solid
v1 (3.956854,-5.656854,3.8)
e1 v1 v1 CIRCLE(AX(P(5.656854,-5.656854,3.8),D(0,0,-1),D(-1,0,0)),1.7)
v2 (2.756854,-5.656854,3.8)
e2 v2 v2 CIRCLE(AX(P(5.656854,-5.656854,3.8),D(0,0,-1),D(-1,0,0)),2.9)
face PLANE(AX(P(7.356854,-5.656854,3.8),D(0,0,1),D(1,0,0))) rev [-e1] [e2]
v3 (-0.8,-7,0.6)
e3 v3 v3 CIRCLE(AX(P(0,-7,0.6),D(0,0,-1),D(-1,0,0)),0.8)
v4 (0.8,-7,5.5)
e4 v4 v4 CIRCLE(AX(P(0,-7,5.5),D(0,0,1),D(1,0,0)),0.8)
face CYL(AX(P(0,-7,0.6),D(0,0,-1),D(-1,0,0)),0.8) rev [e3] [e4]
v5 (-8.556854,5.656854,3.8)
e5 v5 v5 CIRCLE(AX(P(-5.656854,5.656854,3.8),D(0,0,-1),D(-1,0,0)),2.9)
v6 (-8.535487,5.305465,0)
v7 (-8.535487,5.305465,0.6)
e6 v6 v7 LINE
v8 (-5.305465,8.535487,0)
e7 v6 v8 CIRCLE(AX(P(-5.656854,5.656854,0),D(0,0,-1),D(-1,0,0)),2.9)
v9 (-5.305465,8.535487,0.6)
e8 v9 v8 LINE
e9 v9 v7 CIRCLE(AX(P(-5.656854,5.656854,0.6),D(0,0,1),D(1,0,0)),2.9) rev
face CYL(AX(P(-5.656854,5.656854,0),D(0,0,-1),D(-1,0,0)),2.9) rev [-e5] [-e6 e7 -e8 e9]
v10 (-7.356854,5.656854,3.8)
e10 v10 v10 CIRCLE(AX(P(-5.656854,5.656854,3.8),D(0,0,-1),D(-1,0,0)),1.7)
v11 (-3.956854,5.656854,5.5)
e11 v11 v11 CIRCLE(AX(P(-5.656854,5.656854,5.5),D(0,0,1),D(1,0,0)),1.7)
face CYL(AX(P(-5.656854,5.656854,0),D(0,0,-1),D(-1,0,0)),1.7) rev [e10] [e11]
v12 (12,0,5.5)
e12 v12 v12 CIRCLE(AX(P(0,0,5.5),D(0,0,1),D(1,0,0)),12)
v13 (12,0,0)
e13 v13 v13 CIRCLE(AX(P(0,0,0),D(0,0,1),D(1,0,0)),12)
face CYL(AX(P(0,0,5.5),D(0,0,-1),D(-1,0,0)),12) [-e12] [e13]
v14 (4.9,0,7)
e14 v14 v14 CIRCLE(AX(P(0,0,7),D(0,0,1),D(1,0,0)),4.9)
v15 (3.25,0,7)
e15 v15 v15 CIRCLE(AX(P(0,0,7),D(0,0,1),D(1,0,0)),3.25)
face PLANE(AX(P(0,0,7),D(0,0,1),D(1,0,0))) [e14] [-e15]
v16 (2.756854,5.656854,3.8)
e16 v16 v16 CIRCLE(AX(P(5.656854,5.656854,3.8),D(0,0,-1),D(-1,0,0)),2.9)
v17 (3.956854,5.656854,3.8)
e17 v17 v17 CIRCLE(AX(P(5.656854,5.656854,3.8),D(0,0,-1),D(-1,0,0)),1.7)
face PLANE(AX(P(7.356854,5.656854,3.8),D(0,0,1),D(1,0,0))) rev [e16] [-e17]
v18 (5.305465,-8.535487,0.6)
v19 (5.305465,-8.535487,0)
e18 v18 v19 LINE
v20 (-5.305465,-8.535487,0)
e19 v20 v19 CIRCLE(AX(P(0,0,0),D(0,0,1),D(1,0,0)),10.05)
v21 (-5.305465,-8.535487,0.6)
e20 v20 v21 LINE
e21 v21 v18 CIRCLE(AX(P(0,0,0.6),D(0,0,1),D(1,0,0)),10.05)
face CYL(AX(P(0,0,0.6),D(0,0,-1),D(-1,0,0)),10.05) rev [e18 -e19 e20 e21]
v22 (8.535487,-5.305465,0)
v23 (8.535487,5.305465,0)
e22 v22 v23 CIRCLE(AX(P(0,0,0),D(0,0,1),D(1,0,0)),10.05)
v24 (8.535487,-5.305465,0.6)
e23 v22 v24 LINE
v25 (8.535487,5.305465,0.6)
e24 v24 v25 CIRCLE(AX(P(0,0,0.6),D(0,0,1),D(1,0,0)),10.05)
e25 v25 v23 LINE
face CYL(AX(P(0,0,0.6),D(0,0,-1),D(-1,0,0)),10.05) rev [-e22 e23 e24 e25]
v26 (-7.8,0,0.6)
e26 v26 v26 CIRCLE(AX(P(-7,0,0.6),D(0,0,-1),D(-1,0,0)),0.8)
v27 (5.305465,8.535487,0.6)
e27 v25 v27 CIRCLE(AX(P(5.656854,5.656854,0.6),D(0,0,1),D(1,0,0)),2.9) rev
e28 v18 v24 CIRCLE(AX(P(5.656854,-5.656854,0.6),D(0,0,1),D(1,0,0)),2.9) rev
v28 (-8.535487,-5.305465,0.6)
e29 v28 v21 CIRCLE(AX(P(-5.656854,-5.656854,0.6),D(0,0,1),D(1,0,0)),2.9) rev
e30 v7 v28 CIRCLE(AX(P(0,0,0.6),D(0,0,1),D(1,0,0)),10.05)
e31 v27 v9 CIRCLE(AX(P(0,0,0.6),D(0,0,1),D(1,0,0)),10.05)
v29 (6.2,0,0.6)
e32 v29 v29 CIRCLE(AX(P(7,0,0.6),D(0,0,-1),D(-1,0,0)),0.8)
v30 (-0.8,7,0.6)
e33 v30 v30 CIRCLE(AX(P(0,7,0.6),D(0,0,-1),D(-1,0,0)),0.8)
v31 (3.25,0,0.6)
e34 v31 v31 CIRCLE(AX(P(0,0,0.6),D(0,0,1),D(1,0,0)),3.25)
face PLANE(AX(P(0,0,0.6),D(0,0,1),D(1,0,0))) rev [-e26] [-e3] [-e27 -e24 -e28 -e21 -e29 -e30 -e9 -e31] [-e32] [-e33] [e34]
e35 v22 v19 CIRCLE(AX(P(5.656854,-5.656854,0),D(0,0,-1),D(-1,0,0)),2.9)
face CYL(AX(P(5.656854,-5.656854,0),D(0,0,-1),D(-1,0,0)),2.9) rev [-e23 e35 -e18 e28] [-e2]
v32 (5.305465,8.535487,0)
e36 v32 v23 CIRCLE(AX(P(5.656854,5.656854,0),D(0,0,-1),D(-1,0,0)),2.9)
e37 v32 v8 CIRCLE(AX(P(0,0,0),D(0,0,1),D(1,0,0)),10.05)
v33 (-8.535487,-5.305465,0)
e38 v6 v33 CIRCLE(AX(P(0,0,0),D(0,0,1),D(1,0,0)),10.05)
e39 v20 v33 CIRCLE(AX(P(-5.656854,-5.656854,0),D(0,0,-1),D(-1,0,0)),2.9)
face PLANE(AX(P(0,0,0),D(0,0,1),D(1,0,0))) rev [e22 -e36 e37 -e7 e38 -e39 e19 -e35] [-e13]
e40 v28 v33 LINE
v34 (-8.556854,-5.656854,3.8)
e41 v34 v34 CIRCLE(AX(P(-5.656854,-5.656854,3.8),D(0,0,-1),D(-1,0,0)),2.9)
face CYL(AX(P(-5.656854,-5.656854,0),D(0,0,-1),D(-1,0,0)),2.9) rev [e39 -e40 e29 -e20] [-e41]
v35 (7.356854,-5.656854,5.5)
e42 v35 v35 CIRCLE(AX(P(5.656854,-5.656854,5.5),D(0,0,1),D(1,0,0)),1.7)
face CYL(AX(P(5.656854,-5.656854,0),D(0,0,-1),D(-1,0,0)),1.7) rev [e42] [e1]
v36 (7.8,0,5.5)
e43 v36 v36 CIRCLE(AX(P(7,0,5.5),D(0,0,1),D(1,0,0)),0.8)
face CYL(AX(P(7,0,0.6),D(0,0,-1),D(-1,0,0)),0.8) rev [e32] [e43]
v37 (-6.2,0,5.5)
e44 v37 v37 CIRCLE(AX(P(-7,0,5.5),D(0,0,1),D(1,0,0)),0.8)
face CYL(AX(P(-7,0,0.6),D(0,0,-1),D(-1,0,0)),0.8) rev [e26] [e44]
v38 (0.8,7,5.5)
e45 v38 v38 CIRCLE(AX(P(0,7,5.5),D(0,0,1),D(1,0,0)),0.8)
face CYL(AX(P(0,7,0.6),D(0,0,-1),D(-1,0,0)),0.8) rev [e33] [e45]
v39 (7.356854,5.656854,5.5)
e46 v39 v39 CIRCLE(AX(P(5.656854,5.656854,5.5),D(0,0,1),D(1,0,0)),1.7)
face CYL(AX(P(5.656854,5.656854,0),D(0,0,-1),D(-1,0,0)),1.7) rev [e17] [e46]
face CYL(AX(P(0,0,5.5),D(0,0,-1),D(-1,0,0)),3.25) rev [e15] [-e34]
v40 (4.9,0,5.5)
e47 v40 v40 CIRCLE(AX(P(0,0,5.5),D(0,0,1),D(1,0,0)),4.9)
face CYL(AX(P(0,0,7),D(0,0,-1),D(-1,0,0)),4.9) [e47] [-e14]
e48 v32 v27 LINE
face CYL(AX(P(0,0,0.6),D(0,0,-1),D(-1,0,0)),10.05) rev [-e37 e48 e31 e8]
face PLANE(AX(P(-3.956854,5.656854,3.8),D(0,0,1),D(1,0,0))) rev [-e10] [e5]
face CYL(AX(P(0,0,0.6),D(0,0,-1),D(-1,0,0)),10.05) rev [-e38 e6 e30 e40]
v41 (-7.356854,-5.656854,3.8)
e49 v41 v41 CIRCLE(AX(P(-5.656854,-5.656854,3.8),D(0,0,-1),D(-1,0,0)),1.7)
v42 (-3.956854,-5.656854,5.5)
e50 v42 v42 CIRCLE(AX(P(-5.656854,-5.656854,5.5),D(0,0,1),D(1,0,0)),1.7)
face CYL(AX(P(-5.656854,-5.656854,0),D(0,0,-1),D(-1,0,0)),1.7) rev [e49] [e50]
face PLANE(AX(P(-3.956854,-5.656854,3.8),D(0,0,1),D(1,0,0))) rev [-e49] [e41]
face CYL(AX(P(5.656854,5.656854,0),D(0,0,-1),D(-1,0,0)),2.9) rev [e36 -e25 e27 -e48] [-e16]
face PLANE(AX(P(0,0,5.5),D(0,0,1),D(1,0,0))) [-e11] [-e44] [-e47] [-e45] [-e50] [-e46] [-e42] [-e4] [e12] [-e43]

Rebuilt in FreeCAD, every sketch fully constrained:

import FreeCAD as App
import Part
import Sketcher

V = App.Vector

doc = App.newDocument("Part")
params = doc.addObject("Spreadsheet::Sheet", "Params")
for row, (alias, value) in enumerate([
    ("sketch1_diameter", "24 mm"),
    ("sketch1_diameter2", "6.5 mm"),
    ("pad1_length", "5.5 mm"),
    ("sketch2_diameter", "9.8 mm"),
    ("sketch2_diameter2", "6.5 mm"),
    ("pad2_length", "1.5 mm"),
    ("sketch3_diameter", "3.4 mm"),
    ("hole_diameter", "3.4 mm"),
    ("hole_cbore_diameter", "5.8 mm"),
    ("hole_cbore_depth", "3.8 mm"),
    ("sketch4_diameter", "20.1 mm"),
    ("pocket1_length", "0.6 mm"),
    ("sketch5_diameter", "1.6 mm"),
    ("hole2_diameter", "1.6 mm"),
], start=1):
    params.set(f"A{row}", alias)
    params.set(f"B{row}", "=" + value)
    params.setAlias(f"B{row}", alias)

body = doc.addObject("PartDesign::Body", "Body")

sketch1 = body.newObject("Sketcher::SketchObject", "Sketch")
sketch1.AttachmentSupport = (doc.getObject("XY_Plane"), [""])
sketch1.MapMode = "FlatFace"
sketch1.addGeometry(Part.Circle(V(0, 0, 0), V(0, 0, 1), 12), False)
sketch1.addGeometry(Part.Circle(V(0, 0, 0), V(0, 0, 1), 3.2), False)
sketch1.addConstraint(Sketcher.Constraint("Coincident", 0, 3, -1, 1))
sketch1.addConstraint(Sketcher.Constraint("Coincident", 1, 3, -1, 1))
sketch1.addConstraint(Sketcher.Constraint("Diameter", 0, 24.0))
sketch1.addConstraint(Sketcher.Constraint("Diameter", 1, 6.5))
sketch1.setExpression("Constraints[2]", "Params.sketch1_diameter")
sketch1.setExpression("Constraints[3]", "Params.sketch1_diameter2")
pad1 = body.newObject("PartDesign::Pad", "Pad")
pad1.Profile = sketch1
pad1.setExpression("Length", "Params.pad1_length")

sketch2 = body.newObject("Sketcher::SketchObject", "Sketch001")
sketch2.AttachmentSupport = (doc.getObject("XY_Plane"), [""])
sketch2.MapMode = "FlatFace"
sketch2.AttachmentOffset = App.Placement(V(0, 0, 5.5), App.Rotation())
sketch2.addGeometry(Part.Circle(V(0, 0, 0), V(0, 0, 1), 4.9), False)
sketch2.addGeometry(Part.Circle(V(0, 0, 0), V(0, 0, 1), 3.2), False)
sketch2.addConstraint(Sketcher.Constraint("Coincident", 0, 3, -1, 1))
sketch2.addConstraint(Sketcher.Constraint("Coincident", 1, 3, -1, 1))
sketch2.addConstraint(Sketcher.Constraint("Diameter", 0, 9.8))
sketch2.addConstraint(Sketcher.Constraint("Diameter", 1, 6.5))
sketch2.setExpression("Constraints[2]", "Params.sketch2_diameter")
sketch2.setExpression("Constraints[3]", "Params.sketch2_diameter2")
pad2 = body.newObject("PartDesign::Pad", "Pad001")
pad2.Profile = sketch2
pad2.setExpression("Length", "Params.pad2_length")

sketch3 = body.newObject("Sketcher::SketchObject", "Sketch002")
sketch3.AttachmentSupport = (doc.getObject("XY_Plane"), [""])
sketch3.MapMode = "FlatFace"
sketch3.addGeometry(Part.Circle(V(5.7, -5.7, 0), V(0, 0, 1), 1.7), False)
sketch3.addGeometry(Part.Circle(V(-5.7, -5.7, 0), V(0, 0, 1), 1.7), False)
sketch3.addGeometry(Part.Circle(V(-5.7, 5.7, 0), V(0, 0, 1), 1.7), False)
sketch3.addGeometry(Part.Circle(V(5.7, 5.7, 0), V(0, 0, 1), 1.7), False)
sketch3.addConstraint(Sketcher.Constraint("Equal", 0, 1))
sketch3.addConstraint(Sketcher.Constraint("Equal", 1, 2))
sketch3.addConstraint(Sketcher.Constraint("Equal", 2, 3))
sketch3.addConstraint(Sketcher.Constraint("Symmetric", 0, 3, 2, 3, -1, 1))
sketch3.addConstraint(Sketcher.Constraint("Symmetric", 1, 3, 3, 3, -1, 1))
sketch3.addConstraint(Sketcher.Constraint("Symmetric", 0, 3, 1, 3, -2))
sketch3.addConstraint(Sketcher.Constraint("Diameter", 0, 3.4))
sketch3.addConstraint(Sketcher.Constraint("DistanceX", 1, 3, 0, 3, 11.313708))
sketch3.addConstraint(Sketcher.Constraint("DistanceY", 1, 3, 2, 3, 11.313708))
sketch3.setExpression("Constraints[6]", "Params.sketch3_diameter")
doc.recompute()
hole = body.newObject("PartDesign::Hole", "Hole")
hole.Profile = sketch3
hole.ThreadType = "None"
hole.setExpression("Diameter", "Params.hole_diameter")
hole.DepthType = "ThroughAll"
hole.HoleCutType = "Counterbore"
hole.setExpression("HoleCutDiameter", "Params.hole_cbore_diameter")
hole.setExpression("HoleCutDepth", "Params.hole_cbore_depth")
hole.Reversed = True

sketch4 = body.newObject("Sketcher::SketchObject", "Sketch003")
sketch4.AttachmentSupport = (doc.getObject("XY_Plane"), [""])
sketch4.MapMode = "FlatFace"
sketch4.addGeometry(Part.Circle(V(0, 0, 0), V(0, 0, 1), 10), False)
sketch4.addConstraint(Sketcher.Constraint("Coincident", 0, 3, -1, 1))
sketch4.addConstraint(Sketcher.Constraint("Diameter", 0, 20.1))
sketch4.setExpression("Constraints[1]", "Params.sketch4_diameter")
pocket1 = body.newObject("PartDesign::Pocket", "Pocket")
pocket1.Profile = sketch4
pocket1.setExpression("Length", "Params.pocket1_length")
pocket1.Reversed = True

sketch5 = body.newObject("Sketcher::SketchObject", "Sketch004")
sketch5.AttachmentSupport = (doc.getObject("XY_Plane"), [""])
sketch5.MapMode = "FlatFace"
sketch5.AttachmentOffset = App.Placement(V(0, 0, 0.6), App.Rotation())
sketch5.addGeometry(Part.Circle(V(0, -7, 0), V(0, 0, 1), 0.8), False)
sketch5.addGeometry(Part.Circle(V(-7, 0, 0), V(0, 0, 1), 0.8), False)
sketch5.addGeometry(Part.Circle(V(0, 7, 0), V(0, 0, 1), 0.8), False)
sketch5.addGeometry(Part.Circle(V(7, 0, 0), V(0, 0, 1), 0.8), False)
sketch5.addConstraint(Sketcher.Constraint("Equal", 0, 1))
sketch5.addConstraint(Sketcher.Constraint("Equal", 1, 2))
sketch5.addConstraint(Sketcher.Constraint("Equal", 2, 3))
sketch5.addConstraint(Sketcher.Constraint("Symmetric", 0, 3, 2, 3, -1, 1))
sketch5.addConstraint(Sketcher.Constraint("Symmetric", 1, 3, 3, 3, -1, 1))
sketch5.addConstraint(Sketcher.Constraint("PointOnObject", 0, 3, -2))
sketch5.addConstraint(Sketcher.Constraint("PointOnObject", 1, 3, -1))
sketch5.addConstraint(Sketcher.Constraint("Diameter", 0, 1.6))
sketch5.addConstraint(Sketcher.Constraint("DistanceY", 0, 3, -1, 1, 7.0))
sketch5.addConstraint(Sketcher.Constraint("DistanceX", 1, 3, -1, 1, 7.0))
sketch5.setExpression("Constraints[7]", "Params.sketch5_diameter")
doc.recompute()
hole2 = body.newObject("PartDesign::Hole", "Hole001")
hole2.Profile = sketch5
hole2.ThreadType = "None"
hole2.setExpression("Diameter", "Params.hole2_diameter")
hole2.DepthType = "ThroughAll"
hole2.Reversed = True

doc.recompute()
